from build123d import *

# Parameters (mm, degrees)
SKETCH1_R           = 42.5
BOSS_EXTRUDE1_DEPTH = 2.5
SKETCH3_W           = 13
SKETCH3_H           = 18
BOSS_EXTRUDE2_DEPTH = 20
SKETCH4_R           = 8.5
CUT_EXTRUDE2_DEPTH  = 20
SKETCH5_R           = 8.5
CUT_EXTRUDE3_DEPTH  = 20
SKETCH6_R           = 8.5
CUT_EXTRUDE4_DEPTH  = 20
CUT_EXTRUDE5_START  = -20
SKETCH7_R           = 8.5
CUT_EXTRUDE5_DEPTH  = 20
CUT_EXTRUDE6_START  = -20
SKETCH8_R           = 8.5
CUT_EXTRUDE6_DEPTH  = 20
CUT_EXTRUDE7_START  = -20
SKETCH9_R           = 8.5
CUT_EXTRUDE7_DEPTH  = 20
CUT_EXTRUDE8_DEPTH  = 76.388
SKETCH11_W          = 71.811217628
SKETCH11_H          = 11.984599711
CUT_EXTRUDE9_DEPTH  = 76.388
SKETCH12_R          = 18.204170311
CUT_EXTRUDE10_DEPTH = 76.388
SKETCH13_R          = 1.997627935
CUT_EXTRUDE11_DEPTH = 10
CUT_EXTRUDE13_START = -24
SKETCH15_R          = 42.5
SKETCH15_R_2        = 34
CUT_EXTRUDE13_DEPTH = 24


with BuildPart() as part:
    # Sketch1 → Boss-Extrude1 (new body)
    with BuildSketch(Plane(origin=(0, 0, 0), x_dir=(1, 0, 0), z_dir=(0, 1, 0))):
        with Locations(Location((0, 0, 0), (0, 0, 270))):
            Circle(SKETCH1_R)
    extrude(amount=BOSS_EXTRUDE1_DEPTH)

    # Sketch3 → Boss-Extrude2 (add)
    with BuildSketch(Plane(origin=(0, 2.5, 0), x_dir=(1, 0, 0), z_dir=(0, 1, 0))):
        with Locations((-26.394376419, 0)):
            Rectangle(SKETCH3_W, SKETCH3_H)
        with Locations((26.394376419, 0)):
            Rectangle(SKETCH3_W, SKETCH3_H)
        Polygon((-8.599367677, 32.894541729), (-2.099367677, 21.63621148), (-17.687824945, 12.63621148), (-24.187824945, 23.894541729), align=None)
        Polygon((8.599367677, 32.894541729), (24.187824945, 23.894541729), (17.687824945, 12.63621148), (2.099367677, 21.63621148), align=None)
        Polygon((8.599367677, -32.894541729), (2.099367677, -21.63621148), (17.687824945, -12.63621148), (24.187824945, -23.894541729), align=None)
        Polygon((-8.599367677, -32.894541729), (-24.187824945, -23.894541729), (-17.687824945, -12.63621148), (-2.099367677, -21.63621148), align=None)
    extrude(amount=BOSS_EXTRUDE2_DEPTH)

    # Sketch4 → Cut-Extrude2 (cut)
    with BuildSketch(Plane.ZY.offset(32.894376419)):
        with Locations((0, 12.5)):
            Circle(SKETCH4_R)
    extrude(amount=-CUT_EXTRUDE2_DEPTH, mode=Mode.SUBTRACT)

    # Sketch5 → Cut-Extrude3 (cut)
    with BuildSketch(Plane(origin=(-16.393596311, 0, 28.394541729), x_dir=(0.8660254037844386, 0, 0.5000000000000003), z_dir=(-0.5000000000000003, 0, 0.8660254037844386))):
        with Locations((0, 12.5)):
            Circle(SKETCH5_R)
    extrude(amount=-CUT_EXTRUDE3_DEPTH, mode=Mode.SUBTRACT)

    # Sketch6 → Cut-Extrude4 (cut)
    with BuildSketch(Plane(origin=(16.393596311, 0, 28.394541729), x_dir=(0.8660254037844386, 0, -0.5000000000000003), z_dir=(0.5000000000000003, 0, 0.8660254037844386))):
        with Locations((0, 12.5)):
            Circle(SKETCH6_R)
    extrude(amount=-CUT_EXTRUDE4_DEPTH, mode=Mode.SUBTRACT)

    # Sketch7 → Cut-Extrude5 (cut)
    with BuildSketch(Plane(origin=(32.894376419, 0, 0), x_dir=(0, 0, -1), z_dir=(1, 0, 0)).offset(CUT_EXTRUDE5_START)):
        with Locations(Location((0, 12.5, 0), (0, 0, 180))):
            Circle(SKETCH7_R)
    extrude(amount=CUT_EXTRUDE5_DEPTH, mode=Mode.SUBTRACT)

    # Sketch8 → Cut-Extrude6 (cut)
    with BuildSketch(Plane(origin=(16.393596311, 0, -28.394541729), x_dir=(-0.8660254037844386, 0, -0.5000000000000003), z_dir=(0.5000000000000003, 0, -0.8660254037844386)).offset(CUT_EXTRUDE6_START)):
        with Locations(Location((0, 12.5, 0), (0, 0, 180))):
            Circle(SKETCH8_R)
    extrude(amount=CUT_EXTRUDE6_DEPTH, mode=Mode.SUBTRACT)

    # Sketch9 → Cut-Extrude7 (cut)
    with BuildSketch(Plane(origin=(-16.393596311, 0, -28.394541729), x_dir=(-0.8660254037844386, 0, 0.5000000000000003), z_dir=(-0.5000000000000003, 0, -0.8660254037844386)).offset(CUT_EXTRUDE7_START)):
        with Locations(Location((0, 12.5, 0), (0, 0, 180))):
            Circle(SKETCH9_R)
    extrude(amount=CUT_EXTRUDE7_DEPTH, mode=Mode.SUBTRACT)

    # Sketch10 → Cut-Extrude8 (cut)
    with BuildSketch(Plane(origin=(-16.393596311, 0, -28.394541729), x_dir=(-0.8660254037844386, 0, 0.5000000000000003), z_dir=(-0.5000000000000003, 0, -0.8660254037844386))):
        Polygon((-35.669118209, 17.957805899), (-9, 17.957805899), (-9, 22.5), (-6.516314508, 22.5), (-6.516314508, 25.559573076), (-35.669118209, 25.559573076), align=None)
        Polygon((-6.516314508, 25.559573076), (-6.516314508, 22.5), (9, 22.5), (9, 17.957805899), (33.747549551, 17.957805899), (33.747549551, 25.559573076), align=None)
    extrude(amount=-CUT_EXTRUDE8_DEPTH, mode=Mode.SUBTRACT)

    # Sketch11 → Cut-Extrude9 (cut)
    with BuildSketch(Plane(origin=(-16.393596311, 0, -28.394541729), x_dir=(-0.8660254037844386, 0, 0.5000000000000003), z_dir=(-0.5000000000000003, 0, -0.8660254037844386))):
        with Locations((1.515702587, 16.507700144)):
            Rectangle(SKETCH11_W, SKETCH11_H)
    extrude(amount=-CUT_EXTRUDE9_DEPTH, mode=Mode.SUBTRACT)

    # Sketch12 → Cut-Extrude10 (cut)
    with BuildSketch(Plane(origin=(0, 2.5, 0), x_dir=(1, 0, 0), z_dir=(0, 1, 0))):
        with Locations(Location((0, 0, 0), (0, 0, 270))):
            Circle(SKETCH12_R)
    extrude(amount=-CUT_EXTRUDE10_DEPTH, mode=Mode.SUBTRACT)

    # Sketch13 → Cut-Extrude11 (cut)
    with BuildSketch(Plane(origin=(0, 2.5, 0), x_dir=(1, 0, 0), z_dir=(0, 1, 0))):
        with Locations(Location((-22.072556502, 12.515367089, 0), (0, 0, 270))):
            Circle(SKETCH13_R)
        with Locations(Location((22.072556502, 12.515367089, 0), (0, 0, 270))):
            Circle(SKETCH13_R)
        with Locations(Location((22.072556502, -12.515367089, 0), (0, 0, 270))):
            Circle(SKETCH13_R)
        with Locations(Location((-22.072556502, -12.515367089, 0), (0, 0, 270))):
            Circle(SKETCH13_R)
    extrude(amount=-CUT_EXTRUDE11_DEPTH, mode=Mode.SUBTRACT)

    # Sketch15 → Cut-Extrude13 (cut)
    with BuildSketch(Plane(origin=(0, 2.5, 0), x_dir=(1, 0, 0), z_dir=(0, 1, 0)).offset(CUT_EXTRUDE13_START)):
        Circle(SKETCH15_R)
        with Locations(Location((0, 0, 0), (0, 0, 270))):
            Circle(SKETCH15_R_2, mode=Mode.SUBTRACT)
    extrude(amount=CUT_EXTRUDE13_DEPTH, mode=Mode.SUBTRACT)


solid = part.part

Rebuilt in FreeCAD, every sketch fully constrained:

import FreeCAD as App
import Part
import Sketcher

V = App.Vector
Q = App.Units.Quantity


def add_polygon(sketch, points):
    """Adds a closed chain of lines whose ends are joined by coincident constraints."""
    first, n = sketch.GeometryCount, len(points)
    for a, b in zip(points, points[1:] + points[:1]):
        sketch.addGeometry(Part.LineSegment(App.Vector(*a, 0), App.Vector(*b, 0)), False)
    for i in range(n):
        sketch.addConstraint(Sketcher.Constraint("Coincident", first + i, 2, first + (i + 1) % n, 1))

doc = App.newDocument("Part")
body = doc.addObject("PartDesign::Body", "Body")

# Sketch on XZ plane
sketch1 = doc.addObject("Sketcher::SketchObject", "Sketch")
body.addObject(sketch1)
sketch1.AttachmentSupport = (doc.XZ_Plane, [""])
sketch1.MapMode = "FlatFace"
sketch1.addGeometry(Part.Circle(V(0, 0, 0), V(0, 0, 1), 42), False)
sketch1.addConstraint(Sketcher.Constraint("Coincident", 0, 3, -1, 1))
sketch1.addConstraint(Sketcher.Constraint("Diameter", 0, 85.0))
pad1 = doc.addObject("PartDesign::Pad", "Pad")
body.addObject(pad1)
pad1.Profile = sketch1
pad1.Length = 2.5
pad1.Reversed = True

# Sketch on XZ plane
sketch2 = doc.addObject("Sketcher::SketchObject", "Sketch001")
body.addObject(sketch2)
sketch2.AttachmentSupport = (doc.XZ_Plane, [""])
sketch2.MapMode = "FlatFace"
sketch2.AttachmentOffset = App.Placement(V(0, 0, -2.5), App.Rotation())
add_polygon(sketch2, [(-33, -9), (-33, 9), (-20, 9), (-20, -9)])  # lines 0-3
add_polygon(sketch2, [(20, -9), (20, 9), (33, 9), (33, -9)])  # lines 4-7
add_polygon(sketch2, [(-2, -22), (-9, -33), (-24, -24), (-18, -13)])  # lines 8-11
add_polygon(sketch2, [(24, -24), (9, -33), (2, -22), (18, -13)])  # lines 12-15
add_polygon(sketch2, [(2, 22), (9, 33), (24, 24), (18, 13)])  # lines 16-19
add_polygon(sketch2, [(-24, 24), (-9, 33), (-2, 22), (-18, 13)])  # lines 20-23
sketch2.addConstraint(Sketcher.Constraint("Vertical", 0))
sketch2.addConstraint(Sketcher.Constraint("Horizontal", 1))
sketch2.addConstraint(Sketcher.Constraint("Vertical", 2))
sketch2.addConstraint(Sketcher.Constraint("Horizontal", 3))
sketch2.addConstraint(Sketcher.Constraint("Vertical", 4))
sketch2.addConstraint(Sketcher.Constraint("Horizontal", 5))
sketch2.addConstraint(Sketcher.Constraint("Vertical", 6))
sketch2.addConstraint(Sketcher.Constraint("Horizontal", 7))
sketch2.addConstraint(Sketcher.Constraint("Symmetric", 2, 2, 4, 2, -1, 1))
sketch2.addConstraint(Sketcher.Constraint("Symmetric", 0, 2, 6, 2, -1, 1))
sketch2.addConstraint(Sketcher.Constraint("Symmetric", 8, 2, 16, 2, -1, 1))
sketch2.addConstraint(Sketcher.Constraint("Symmetric", 9, 2, 17, 2, -1, 1))
sketch2.addConstraint(Sketcher.Constraint("Symmetric", 10, 2, 18, 2, -1, 1))
sketch2.addConstraint(Sketcher.Constraint("Symmetric", 11, 2, 19, 2, -1, 1))
sketch2.addConstraint(Sketcher.Constraint("Symmetric", 12, 2, 20, 2, -1, 1))
sketch2.addConstraint(Sketcher.Constraint("Symmetric", 13, 2, 21, 2, -1, 1))
sketch2.addConstraint(Sketcher.Constraint("Symmetric", 14, 2, 22, 2, -1, 1))
sketch2.addConstraint(Sketcher.Constraint("Symmetric", 15, 2, 23, 2, -1, 1))
sketch2.addConstraint(Sketcher.Constraint("Symmetric", 8, 2, 12, 2, -2))
sketch2.addConstraint(Sketcher.Constraint("Symmetric", 11, 2, 13, 2, -2))
sketch2.addConstraint(Sketcher.Constraint("Symmetric", 10, 2, 14, 2, -2))
sketch2.addConstraint(Sketcher.Constraint("Symmetric", 9, 2, 15, 2, -2))
sketch2.addConstraint(Sketcher.Constraint("Perpendicular", 8, 9))
sketch2.addConstraint(Sketcher.Constraint("Perpendicular", 9, 10))
sketch2.addConstraint(Sketcher.Constraint("Perpendicular", 10, 11))
sketch2.addConstraint(Sketcher.Constraint("Horizontal", 1, 2, 4, 2))
sketch2.addConstraint(Sketcher.Constraint("DistanceX", 1, 1, 1, 2, 13.0))
sketch2.addConstraint(Sketcher.Constraint("DistanceY", 0, 1, 0, 2, 18.0))
sketch2.addConstraint(Sketcher.Constraint("Angle", 8, Q("-120 deg")))
sketch2.addConstraint(Sketcher.Constraint("Distance", 8, 13.0))
sketch2.addConstraint(Sketcher.Constraint("Distance", 9, 18.0))
sketch2.addConstraint(Sketcher.Constraint("DistanceY", 8, 2, -1, 1, 32.894542))
sketch2.addConstraint(Sketcher.Constraint("DistanceX", 2, 2, 8, 2, 11.295009))
sketch2.addConstraint(Sketcher.Constraint("DistanceX", 0, 2, -1, 1, 32.894376))
pad2 = doc.addObject("PartDesign::Pad", "Pad001")
body.addObject(pad2)
pad2.Profile = sketch2
pad2.Length = 20
pad2.Reversed = True

# Sketch on YZ plane
sketch3 = doc.addObject("Sketcher::SketchObject", "Sketch002")
body.addObject(sketch3)
sketch3.AttachmentSupport = (doc.YZ_Plane, [""])
sketch3.MapMode = "FlatFace"
sketch3.AttachmentOffset = App.Placement(V(0, 0, -32.894376), App.Rotation())
sketch3.addGeometry(Part.Circle(V(12, 0, 0), V(0, 0, 1), 8), False)
sketch3.addConstraint(Sketcher.Constraint("PointOnObject", 0, 3, -1))
sketch3.addConstraint(Sketcher.Constraint("Diameter", 0, 17.0))
sketch3.addConstraint(Sketcher.Constraint("DistanceX", -1, 1, 0, 3, 12.5))
pocket1 = doc.addObject("PartDesign::Pocket", "Pocket")
body.addObject(pocket1)
pocket1.Profile = sketch3
pocket1.Length = 20
pocket1.Reversed = True

# Sketch on an angled plane
sketch4 = doc.addObject("Sketcher::SketchObject", "Sketch003")
body.addObject(sketch4)
sketch4.Placement = App.Placement(V(-16.393596, 0, 28.394542), App.Rotation(V(0.866025404, 0, 0.5), V(0, 1, 0), V(-0.5, 0, 0.866025404), "ZXY"))
sketch4.addGeometry(Part.Circle(V(0, 13, 0), V(0, 0, 1), 8), False)
sketch4.addConstraint(Sketcher.Constraint("PointOnObject", 0, 3, -2))
sketch4.addConstraint(Sketcher.Constraint("Diameter", 0, 17.0))
sketch4.addConstraint(Sketcher.Constraint("DistanceY", -1, 1, 0, 3, 12.5))
pocket2 = doc.addObject("PartDesign::Pocket", "Pocket001")
body.addObject(pocket2)
pocket2.Profile = sketch4
pocket2.Length = 20

# Sketch on an angled plane
sketch5 = doc.addObject("Sketcher::SketchObject", "Sketch004")
body.addObject(sketch5)
sketch5.Placement = App.Placement(V(16.393596, 0, 28.394542), App.Rotation(V(0.866025404, 0, -0.5), V(0, 1, 0), V(0.5, 0, 0.866025404), "ZXY"))
sketch5.addGeometry(Part.Circle(V(0, 13, 0), V(0, 0, 1), 8), False)
sketch5.addConstraint(Sketcher.Constraint("PointOnObject", 0, 3, -2))
sketch5.addConstraint(Sketcher.Constraint("Diameter", 0, 17.0))
sketch5.addConstraint(Sketcher.Constraint("DistanceY", -1, 1, 0, 3, 12.5))
pocket3 = doc.addObject("PartDesign::Pocket", "Pocket002")
body.addObject(pocket3)
pocket3.Profile = sketch5
pocket3.Length = 20

# Sketch on YZ plane
sketch6 = doc.addObject("Sketcher::SketchObject", "Sketch005")
body.addObject(sketch6)
sketch6.AttachmentSupport = (doc.YZ_Plane, [""])
sketch6.MapMode = "FlatFace"
sketch6.AttachmentOffset = App.Placement(V(0, 0, 12.894376), App.Rotation())
sketch6.addGeometry(Part.Circle(V(12, 0, 0), V(0, 0, 1), 8), False)
sketch6.addConstraint(Sketcher.Constraint("PointOnObject", 0, 3, -1))
sketch6.addConstraint(Sketcher.Constraint("Diameter", 0, 17.0))
sketch6.addConstraint(Sketcher.Constraint("DistanceX", -1, 1, 0, 3, 12.5))
pocket4 = doc.addObject("PartDesign::Pocket", "Pocket003")
body.addObject(pocket4)
pocket4.Profile = sketch6
pocket4.Length = 20
pocket4.Reversed = True

# Sketch on an angled plane
sketch7 = doc.addObject("Sketcher::SketchObject", "Sketch006")
body.addObject(sketch7)
sketch7.Placement = App.Placement(V(6.393596, 0, -11.074034), App.Rotation(V(-0.866025404, 0, -0.5), V(0, 1, 0), V(0.5, 0, -0.866025404), "ZXY"))
sketch7.addGeometry(Part.Circle(V(0, 13, 0), V(0, 0, 1), 8), False)
sketch7.addConstraint(Sketcher.Constraint("PointOnObject", 0, 3, -2))
sketch7.addConstraint(Sketcher.Constraint("Diameter", 0, 17.0))
sketch7.addConstraint(Sketcher.Constraint("DistanceY", -1, 1, 0, 3, 12.5))
pocket5 = doc.addObject("PartDesign::Pocket", "Pocket004")
body.addObject(pocket5)
pocket5.Profile = sketch7
pocket5.Length = 20
pocket5.Reversed = True

# Sketch on an angled plane
sketch8 = doc.addObject("Sketcher::SketchObject", "Sketch007")
body.addObject(sketch8)
sketch8.Placement = App.Placement(V(-6.393596, 0, -11.074034), App.Rotation(V(-0.866025404, 0, 0.5), V(0, 1, 0), V(-0.5, 0, -0.866025404), "ZXY"))
sketch8.addGeometry(Part.Circle(V(0, 13, 0), V(0, 0, 1), 8), False)
sketch8.addConstraint(Sketcher.Constraint("PointOnObject", 0, 3, -2))
sketch8.addConstraint(Sketcher.Constraint("Diameter", 0, 17.0))
sketch8.addConstraint(Sketcher.Constraint("DistanceY", -1, 1, 0, 3, 12.5))
pocket6 = doc.addObject("PartDesign::Pocket", "Pocket005")
body.addObject(pocket6)
pocket6.Profile = sketch8
pocket6.Length = 20
pocket6.Reversed = True

# Sketch on an angled plane
sketch9 = doc.addObject("Sketcher::SketchObject", "Sketch008")
body.addObject(sketch9)
sketch9.Placement = App.Placement(V(-16.393596, 0, -28.394542), App.Rotation(V(-0.866025404, 0, 0.5), V(0, 1, 0), V(-0.5, 0, -0.866025404), "ZXY"))
add_polygon(sketch9, [(-35.7, 18), (-9, 18), (-9, 22.5), (9, 22.5), (9, 18), (33.7, 18), (33.7, 25.6), (-35.7, 25.6)])  # lines 0-7
sketch9.addConstraint(Sketcher.Constraint("Horizontal", 0))
sketch9.addConstraint(Sketcher.Constraint("Vertical", 1))
sketch9.addConstraint(Sketcher.Constraint("Horizontal", 2))
sketch9.addConstraint(Sketcher.Constraint("Vertical", 3))
sketch9.addConstraint(Sketcher.Constraint("Horizontal", 4))
sketch9.addConstraint(Sketcher.Constraint("Vertical", 5))
sketch9.addConstraint(Sketcher.Constraint("Horizontal", 6))
sketch9.addConstraint(Sketcher.Constraint("Vertical", 7))
sketch9.addConstraint(Sketcher.Constraint("Symmetric", 0, 2, 3, 2, -2))
sketch9.addConstraint(Sketcher.Constraint("DistanceX", 2, 1, 2, 2, 18.0))
sketch9.addConstraint(Sketcher.Constraint("DistanceY", -1, 1, 1, 2, 22.5))
sketch9.addConstraint(Sketcher.Constraint("DistanceX", 0, 1, 0, 2, 26.669118))
sketch9.addConstraint(Sketcher.Constraint("DistanceX", 4, 1, 4, 2, 24.74755))
sketch9.addConstraint(Sketcher.Constraint("DistanceY", 1, 1, 1, 2, 4.542194))
sketch9.addConstraint(Sketcher.Constraint("DistanceY", 5, 1, 5, 2, 7.601767))
pocket7 = doc.addObject("PartDesign::Pocket", "Pocket006")
body.addObject(pocket7)
pocket7.Profile = sketch9
pocket7.Length = 76.388

# Sketch on an angled plane
sketch10 = doc.addObject("Sketcher::SketchObject", "Sketch009")
body.addObject(sketch10)
sketch10.Placement = App.Placement(V(-16.393596, 0, -28.394542), App.Rotation(V(-0.866025404, 0, 0.5), V(0, 1, 0), V(-0.5, 0, -0.866025404), "ZXY"))
add_polygon(sketch10, [(-34, 23), (-34, 11), (37, 11), (37, 23)])  # lines 0-3
sketch10.addConstraint(Sketcher.Constraint("Vertical", 0))
sketch10.addConstraint(Sketcher.Constraint("Horizontal", 1))
sketch10.addConstraint(Sketcher.Constraint("Vertical", 2))
sketch10.addConstraint(Sketcher.Constraint("Horizontal", 3))
sketch10.addConstraint(Sketcher.Constraint("DistanceY", -1, 1, 2, 2, 22.5))
sketch10.addConstraint(Sketcher.Constraint("DistanceY", 0, 2, 0, 1, 11.9846))
sketch10.addConstraint(Sketcher.Constraint("DistanceX", 1, 1, 1, 2, 71.811218))
sketch10.addConstraint(Sketcher.Constraint("DistanceX", -1, 1, 1, 2, 37.421311))
pocket8 = doc.addObject("PartDesign::Pocket", "Pocket007")
body.addObject(pocket8)
pocket8.Profile = sketch10
pocket8.Length = 76.388

# Sketch on XZ plane
sketch11 = doc.addObject("Sketcher::SketchObject", "Sketch010")
body.addObject(sketch11)
sketch11.AttachmentSupport = (doc.XZ_Plane, [""])
sketch11.MapMode = "FlatFace"
sketch11.AttachmentOffset = App.Placement(V(0, 0, -2.5), App.Rotation())
sketch11.addGeometry(Part.Circle(V(0, 0, 0), V(0, 0, 1), 18), False)
sketch11.addConstraint(Sketcher.Constraint("Coincident", 0, 3, -1, 1))
sketch11.addConstraint(Sketcher.Constraint("Diameter", 0, 36.408341))
pocket9 = doc.addObject("PartDesign::Pocket", "Pocket008")
body.addObject(pocket9)
pocket9.Profile = sketch11
pocket9.Length = 76.388
pocket9.Reversed = True

# Sketch on XZ plane
sketch12 = doc.addObject("Sketcher::SketchObject", "Sketch011")
body.addObject(sketch12)
sketch12.AttachmentSupport = (doc.XZ_Plane, [""])
sketch12.MapMode = "FlatFace"
sketch12.AttachmentOffset = App.Placement(V(0, 0, -2.5), App.Rotation())
sketch12.addGeometry(Part.Circle(V(-22.1, -12.5, 0), V(0, 0, 1), 2), False)
sketch12.addGeometry(Part.Circle(V(22.1, -12.5, 0), V(0, 0, 1), 2), False)
sketch12.addGeometry(Part.Circle(V(22.1, 12.5, 0), V(0, 0, 1), 2), False)
sketch12.addGeometry(Part.Circle(V(-22.1, 12.5, 0), V(0, 0, 1), 2), False)
sketch12.addConstraint(Sketcher.Constraint("Equal", 0, 1))
sketch12.addConstraint(Sketcher.Constraint("Equal", 1, 2))
sketch12.addConstraint(Sketcher.Constraint("Equal", 2, 3))
sketch12.addConstraint(Sketcher.Constraint("Symmetric", 0, 3, 2, 3, -1, 1))
sketch12.addConstraint(Sketcher.Constraint("Symmetric", 1, 3, 3, 3, -1, 1))
sketch12.addConstraint(Sketcher.Constraint("Symmetric", 0, 3, 1, 3, -2))
sketch12.addConstraint(Sketcher.Constraint("Diameter", 0, 3.995256))
sketch12.addConstraint(Sketcher.Constraint("DistanceX", 0, 3, -1, 1, 22.072557))
sketch12.addConstraint(Sketcher.Constraint("DistanceY", 0, 3, -1, 1, 12.515367))
pocket10 = doc.addObject("PartDesign::Pocket", "Pocket009")
body.addObject(pocket10)
pocket10.Profile = sketch12
pocket10.Length = 10
pocket10.Reversed = True

# Sketch on XZ plane
sketch13 = doc.addObject("Sketcher::SketchObject", "Sketch012")
body.addObject(sketch13)
sketch13.AttachmentSupport = (doc.XZ_Plane, [""])
sketch13.MapMode = "FlatFace"
sketch13.AttachmentOffset = App.Placement(V(0, 0, 21.5), App.Rotation())
sketch13.addGeometry(Part.Circle(V(0, 0, 0), V(0, 0, 1), 42), False)
sketch13.addGeometry(Part.Circle(V(0, 0, 0), V(0, 0, 1), 34), False)
sketch13.addConstraint(Sketcher.Constraint("Coincident", 0, 3, -1, 1))
sketch13.addConstraint(Sketcher.Constraint("Coincident", 1, 3, -1, 1))
sketch13.addConstraint(Sketcher.Constraint("Diameter", 0, 85.0))
sketch13.addConstraint(Sketcher.Constraint("Diameter", 1, 68.0))
pocket11 = doc.addObject("PartDesign::Pocket", "Pocket010")
body.addObject(pocket11)
pocket11.Profile = sketch13
pocket11.Length = 24

doc.recompute()
